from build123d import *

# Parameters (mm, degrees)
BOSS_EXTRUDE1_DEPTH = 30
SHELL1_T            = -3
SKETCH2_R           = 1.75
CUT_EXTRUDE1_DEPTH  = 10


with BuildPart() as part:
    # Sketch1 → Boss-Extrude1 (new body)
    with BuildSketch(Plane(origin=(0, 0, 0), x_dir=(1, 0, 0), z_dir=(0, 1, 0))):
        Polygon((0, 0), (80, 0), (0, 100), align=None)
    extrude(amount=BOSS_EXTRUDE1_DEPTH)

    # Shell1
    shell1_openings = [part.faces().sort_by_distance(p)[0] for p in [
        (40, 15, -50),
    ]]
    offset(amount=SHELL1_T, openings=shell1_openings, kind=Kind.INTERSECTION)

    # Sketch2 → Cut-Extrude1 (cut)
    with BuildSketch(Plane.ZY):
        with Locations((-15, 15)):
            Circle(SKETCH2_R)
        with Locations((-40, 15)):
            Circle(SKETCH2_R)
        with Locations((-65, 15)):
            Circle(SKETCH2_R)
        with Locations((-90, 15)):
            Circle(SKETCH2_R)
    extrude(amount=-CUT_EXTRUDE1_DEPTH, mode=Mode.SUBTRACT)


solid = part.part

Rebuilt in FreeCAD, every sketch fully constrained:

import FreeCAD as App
import Part
import Sketcher


def faces_at(feature, points):
    """Names of the faces that lie closest to the given points."""
    faces = feature.Shape.Faces
    near = lambda p: min(range(len(faces)), key=lambda i: faces[i].distToShape(Part.Vertex(*p))[0])
    return sorted({f"Face{near(p) + 1}" for p in points})


def add_polygon(sketch, points):
    """Adds a closed chain of lines whose ends are joined by coincident constraints."""
    first, n = sketch.GeometryCount, len(points)
    for a, b in zip(points, points[1:] + points[:1]):
        sketch.addGeometry(Part.LineSegment(App.Vector(*a, 0), App.Vector(*b, 0)), False)
    for i in range(n):
        sketch.addConstraint(Sketcher.Constraint("Coincident", first + i, 2, first + (i + 1) % n, 1))

doc = App.newDocument("Part")
body = doc.addObject("PartDesign::Body", "Body")

# Sketch on XZ plane
sketch1 = body.newObject("Sketcher::SketchObject", "Sketch")
sketch1.AttachmentSupport = (doc.getObject("XZ_Plane"), [""])
sketch1.MapMode = "FlatFace"
add_polygon(sketch1, [(0, 0), (80, 0), (0, -100)])  # lines 0-2
sketch1.addConstraint([
    Sketcher.Constraint("Horizontal", 0),
    Sketcher.Constraint("Vertical", 2),
    Sketcher.Constraint("Coincident", 2, 2, -1, 1),
    Sketcher.Constraint("DistanceX", 0, 1, 0, 2, 80.0),
    Sketcher.Constraint("DistanceY", 2, 1, 2, 2, 100.0),
])
pad1 = body.newObject("PartDesign::Pad", "Pad")
pad1.Profile = sketch1
pad1.Length = 30
pad1.Reversed = True
doc.recompute()

thickness = body.newObject("PartDesign::Thickness", "Thickness")
thickness.Base = (pad1, faces_at(pad1, [(40, 15, -50)]))
thickness.Value = 3
thickness.Reversed = True
thickness.Join = "Intersection"

# Sketch on YZ plane
sketch2 = body.newObject("Sketcher::SketchObject", "Sketch001")
sketch2.AttachmentSupport = (doc.getObject("YZ_Plane"), [""])
sketch2.MapMode = "FlatFace"
sketch2.addGeometry([
    Part.Circle(App.Vector(15, -15, 0), App.Vector(0, 0, 1), 1.8),
    Part.Circle(App.Vector(15, -40, 0), App.Vector(0, 0, 1), 1.8),
    Part.Circle(App.Vector(15, -65, 0), App.Vector(0, 0, 1), 1.8),
    Part.Circle(App.Vector(15, -90, 0), App.Vector(0, 0, 1), 1.8),
], False)
sketch2.addConstraint([
    Sketcher.Constraint("Equal", 0, 1),
    Sketcher.Constraint("Equal", 1, 2),
    Sketcher.Constraint("Equal", 2, 3),
    Sketcher.Constraint("Vertical", 0, 3, 1, 3),
    Sketcher.Constraint("Vertical", 1, 3, 2, 3),
    Sketcher.Constraint("Vertical", 2, 3, 3, 3),
    Sketcher.Constraint("Diameter", 0, 3.5),
    Sketcher.Constraint("DistanceX", -1, 1, 0, 3, 15.0),
    Sketcher.Constraint("DistanceY", 0, 3, -1, 1, 15.0),
    Sketcher.Constraint("DistanceY", 1, 3, -1, 1, 40.0),
    Sketcher.Constraint("DistanceY", 2, 3, -1, 1, 65.0),
    Sketcher.Constraint("DistanceY", 3, 3, -1, 1, 90.0),
])
pocket1 = body.newObject("PartDesign::Pocket", "Pocket")
pocket1.Profile = sketch2
pocket1.Length = 10
pocket1.Reversed = True

doc.recompute()
